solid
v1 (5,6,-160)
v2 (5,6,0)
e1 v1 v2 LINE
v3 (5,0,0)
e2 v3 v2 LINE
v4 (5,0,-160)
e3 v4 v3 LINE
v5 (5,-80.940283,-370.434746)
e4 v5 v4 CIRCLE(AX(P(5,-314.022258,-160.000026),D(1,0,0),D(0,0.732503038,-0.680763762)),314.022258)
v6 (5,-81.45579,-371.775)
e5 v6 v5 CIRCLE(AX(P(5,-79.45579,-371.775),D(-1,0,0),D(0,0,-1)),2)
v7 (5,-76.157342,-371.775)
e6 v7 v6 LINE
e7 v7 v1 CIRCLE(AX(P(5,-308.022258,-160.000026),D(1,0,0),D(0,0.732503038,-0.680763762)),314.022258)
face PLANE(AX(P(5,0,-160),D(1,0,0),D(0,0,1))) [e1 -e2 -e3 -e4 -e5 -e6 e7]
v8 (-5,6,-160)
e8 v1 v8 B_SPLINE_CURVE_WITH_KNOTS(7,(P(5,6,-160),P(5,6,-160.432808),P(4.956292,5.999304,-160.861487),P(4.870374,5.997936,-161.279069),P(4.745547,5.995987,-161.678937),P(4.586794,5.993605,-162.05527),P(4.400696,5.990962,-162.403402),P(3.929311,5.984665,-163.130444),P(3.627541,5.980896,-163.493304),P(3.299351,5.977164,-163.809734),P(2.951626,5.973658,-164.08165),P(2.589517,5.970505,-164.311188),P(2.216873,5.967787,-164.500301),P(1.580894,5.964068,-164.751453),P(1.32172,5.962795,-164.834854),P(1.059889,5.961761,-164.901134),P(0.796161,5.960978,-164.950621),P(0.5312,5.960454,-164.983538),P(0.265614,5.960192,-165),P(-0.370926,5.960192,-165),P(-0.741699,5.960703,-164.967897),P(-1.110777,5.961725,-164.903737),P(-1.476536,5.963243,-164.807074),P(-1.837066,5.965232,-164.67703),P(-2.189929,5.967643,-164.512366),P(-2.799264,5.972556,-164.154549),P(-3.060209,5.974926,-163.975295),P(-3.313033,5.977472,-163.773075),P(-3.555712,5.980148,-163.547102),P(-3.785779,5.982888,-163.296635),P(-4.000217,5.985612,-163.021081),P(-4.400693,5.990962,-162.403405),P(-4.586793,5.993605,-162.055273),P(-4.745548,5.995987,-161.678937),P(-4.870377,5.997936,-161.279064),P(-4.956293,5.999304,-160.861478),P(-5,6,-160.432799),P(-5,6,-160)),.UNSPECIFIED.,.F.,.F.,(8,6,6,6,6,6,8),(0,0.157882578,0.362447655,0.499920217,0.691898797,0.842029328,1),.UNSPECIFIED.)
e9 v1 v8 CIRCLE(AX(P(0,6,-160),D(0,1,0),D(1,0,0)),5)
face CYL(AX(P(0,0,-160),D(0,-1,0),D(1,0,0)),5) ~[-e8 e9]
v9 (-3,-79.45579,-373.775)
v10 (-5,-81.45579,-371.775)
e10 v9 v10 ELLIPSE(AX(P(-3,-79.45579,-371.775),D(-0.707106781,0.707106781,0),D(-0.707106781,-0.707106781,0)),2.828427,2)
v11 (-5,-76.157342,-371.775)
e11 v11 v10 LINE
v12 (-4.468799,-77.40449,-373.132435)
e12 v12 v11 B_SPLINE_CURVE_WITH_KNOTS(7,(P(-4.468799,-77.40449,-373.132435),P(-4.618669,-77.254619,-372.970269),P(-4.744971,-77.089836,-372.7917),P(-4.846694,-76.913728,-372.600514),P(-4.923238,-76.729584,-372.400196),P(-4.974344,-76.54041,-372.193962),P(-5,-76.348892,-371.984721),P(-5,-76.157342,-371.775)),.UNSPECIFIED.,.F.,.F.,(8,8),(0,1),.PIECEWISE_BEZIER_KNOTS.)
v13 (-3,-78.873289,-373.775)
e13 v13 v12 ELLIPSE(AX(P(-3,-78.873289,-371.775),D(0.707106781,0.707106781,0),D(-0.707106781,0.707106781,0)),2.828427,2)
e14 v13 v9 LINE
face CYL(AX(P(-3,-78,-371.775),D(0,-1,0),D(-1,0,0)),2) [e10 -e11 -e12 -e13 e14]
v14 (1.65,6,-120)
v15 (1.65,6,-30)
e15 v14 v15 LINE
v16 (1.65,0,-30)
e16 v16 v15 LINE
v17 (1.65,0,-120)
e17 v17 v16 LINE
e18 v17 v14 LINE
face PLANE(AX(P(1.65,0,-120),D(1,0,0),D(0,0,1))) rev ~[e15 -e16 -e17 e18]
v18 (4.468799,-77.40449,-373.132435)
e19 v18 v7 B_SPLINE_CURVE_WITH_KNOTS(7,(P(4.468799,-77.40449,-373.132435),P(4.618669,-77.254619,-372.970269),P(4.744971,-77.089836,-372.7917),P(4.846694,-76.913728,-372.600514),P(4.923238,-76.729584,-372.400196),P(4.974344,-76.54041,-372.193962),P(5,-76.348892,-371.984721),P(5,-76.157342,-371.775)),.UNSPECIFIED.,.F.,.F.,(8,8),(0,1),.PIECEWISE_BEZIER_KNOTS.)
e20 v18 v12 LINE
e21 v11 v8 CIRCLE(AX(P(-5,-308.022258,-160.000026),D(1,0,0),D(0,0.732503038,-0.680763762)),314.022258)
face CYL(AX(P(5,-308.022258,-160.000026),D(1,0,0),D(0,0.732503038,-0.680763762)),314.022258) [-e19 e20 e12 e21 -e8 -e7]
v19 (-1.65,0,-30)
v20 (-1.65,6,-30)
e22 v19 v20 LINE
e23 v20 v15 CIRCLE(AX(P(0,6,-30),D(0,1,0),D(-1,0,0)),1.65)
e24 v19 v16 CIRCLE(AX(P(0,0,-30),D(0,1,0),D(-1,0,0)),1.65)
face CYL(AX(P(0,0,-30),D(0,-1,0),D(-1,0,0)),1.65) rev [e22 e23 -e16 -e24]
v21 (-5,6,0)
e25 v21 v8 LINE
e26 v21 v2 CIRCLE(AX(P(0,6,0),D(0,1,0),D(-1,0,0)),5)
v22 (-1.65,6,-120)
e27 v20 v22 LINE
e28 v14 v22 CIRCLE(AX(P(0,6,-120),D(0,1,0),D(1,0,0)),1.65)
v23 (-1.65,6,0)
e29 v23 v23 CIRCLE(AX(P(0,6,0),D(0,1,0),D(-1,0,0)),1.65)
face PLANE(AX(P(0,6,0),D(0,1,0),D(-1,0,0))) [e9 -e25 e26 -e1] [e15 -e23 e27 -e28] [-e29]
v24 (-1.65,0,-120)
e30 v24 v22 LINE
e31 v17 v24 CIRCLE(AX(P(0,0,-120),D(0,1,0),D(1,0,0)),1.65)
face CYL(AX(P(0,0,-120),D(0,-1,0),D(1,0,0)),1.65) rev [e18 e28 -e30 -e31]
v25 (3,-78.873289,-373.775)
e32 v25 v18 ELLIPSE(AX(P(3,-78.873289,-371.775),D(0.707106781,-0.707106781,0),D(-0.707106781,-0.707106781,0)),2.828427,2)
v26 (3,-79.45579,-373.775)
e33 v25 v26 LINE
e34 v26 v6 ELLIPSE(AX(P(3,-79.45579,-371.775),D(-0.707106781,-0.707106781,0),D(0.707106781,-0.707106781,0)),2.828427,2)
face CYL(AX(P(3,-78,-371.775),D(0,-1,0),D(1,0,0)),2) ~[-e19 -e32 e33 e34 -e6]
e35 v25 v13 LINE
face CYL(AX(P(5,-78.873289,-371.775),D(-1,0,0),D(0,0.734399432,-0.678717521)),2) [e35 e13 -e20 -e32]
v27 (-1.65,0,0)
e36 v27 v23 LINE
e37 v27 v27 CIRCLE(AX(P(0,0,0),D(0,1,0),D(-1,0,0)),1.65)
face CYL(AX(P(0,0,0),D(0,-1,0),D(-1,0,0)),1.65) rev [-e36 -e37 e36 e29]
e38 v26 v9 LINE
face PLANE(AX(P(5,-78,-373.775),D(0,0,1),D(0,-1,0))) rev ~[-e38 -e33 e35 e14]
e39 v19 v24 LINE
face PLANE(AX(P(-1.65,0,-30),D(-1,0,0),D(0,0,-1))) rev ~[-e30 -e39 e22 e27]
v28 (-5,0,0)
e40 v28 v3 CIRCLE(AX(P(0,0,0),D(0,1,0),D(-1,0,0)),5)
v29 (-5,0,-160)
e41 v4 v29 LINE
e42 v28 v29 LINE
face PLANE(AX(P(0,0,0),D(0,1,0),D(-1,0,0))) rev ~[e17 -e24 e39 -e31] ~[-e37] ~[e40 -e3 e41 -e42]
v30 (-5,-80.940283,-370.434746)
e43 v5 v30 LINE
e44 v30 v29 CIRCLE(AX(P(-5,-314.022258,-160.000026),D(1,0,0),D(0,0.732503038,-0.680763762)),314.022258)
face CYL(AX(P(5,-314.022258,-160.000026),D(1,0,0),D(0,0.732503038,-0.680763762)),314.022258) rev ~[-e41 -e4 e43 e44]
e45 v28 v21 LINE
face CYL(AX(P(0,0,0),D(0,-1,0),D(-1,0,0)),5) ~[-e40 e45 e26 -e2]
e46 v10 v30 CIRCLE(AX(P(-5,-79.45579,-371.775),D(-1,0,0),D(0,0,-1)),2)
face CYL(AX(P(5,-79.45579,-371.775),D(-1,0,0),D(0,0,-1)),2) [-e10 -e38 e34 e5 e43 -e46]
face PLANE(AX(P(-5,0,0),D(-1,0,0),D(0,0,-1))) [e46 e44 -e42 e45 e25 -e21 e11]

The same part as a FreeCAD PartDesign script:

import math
import FreeCAD as App
import Part
import Sketcher
from FreeCAD import Vector
Q = App.Units.Quantity


def edges_at(feature, points):
    """Names of the edges that pass closest to the given points."""
    edges = feature.Shape.Edges
    near = lambda p: min(range(len(edges)), key=lambda i: edges[i].distToShape(Part.Vertex(*p))[0])
    return sorted({f"Edge{near(p) + 1}" for p in points})

doc = App.newDocument("Part")
body = doc.addObject("PartDesign::Body", "Body")

sketch1 = doc.addObject("Sketcher::SketchObject", "Sketch")
body.addObject(sketch1)
sketch1.AttachmentSupport = (doc.XZ_Plane, [""])
sketch1.MapMode = "FlatFace"
sketch1.addGeometry(Part.LineSegment(Vector(-5, -160, 0), Vector(-5, 0, 0)), False)
sketch1.addGeometry(Part.ArcOfCircle(Part.Circle(Vector(0, 0, 0), Vector(0, 0, 1), 5), math.radians(0), math.radians(180)), False)
sketch1.addGeometry(Part.LineSegment(Vector(5, 0, 0), Vector(5, -160, 0)), False)
sketch1.addGeometry(Part.ArcOfCircle(Part.Circle(Vector(0, -160, 0), Vector(0, 0, 1), 5), math.radians(180), math.radians(360)), False)
sketch1.addGeometry(Part.ArcOfCircle(Part.Circle(Vector(0, -30, 0), Vector(0, 0, 1), 1.65), math.radians(0), math.radians(180)), False)
sketch1.addGeometry(Part.LineSegment(Vector(-1.65, -30, 0), Vector(-1.65, -120, 0)), False)
sketch1.addGeometry(Part.ArcOfCircle(Part.Circle(Vector(0, -120, 0), Vector(0, 0, 1), 1.65), math.radians(180), math.radians(360)), False)
sketch1.addGeometry(Part.LineSegment(Vector(1.65, -120, 0), Vector(1.65, -30, 0)), False)
sketch1.addGeometry(Part.Circle(Vector(0, 0, 0), Vector(0, 0, 1), 1.65), False)
sketch1.addConstraint(Sketcher.Constraint("Tangent", 0, 2, 1, 2))
sketch1.addConstraint(Sketcher.Constraint("Tangent", 1, 1, 2, 1))
sketch1.addConstraint(Sketcher.Constraint("Tangent", 2, 2, 3, 2))
sketch1.addConstraint(Sketcher.Constraint("Tangent", 3, 1, 0, 1))
sketch1.addConstraint(Sketcher.Constraint("Tangent", 4, 2, 5, 1))
sketch1.addConstraint(Sketcher.Constraint("Tangent", 5, 2, 6, 1))
sketch1.addConstraint(Sketcher.Constraint("Tangent", 6, 2, 7, 1))
sketch1.addConstraint(Sketcher.Constraint("Tangent", 7, 2, 4, 1))
sketch1.addConstraint(Sketcher.Constraint("Vertical", 0))
sketch1.addConstraint(Sketcher.Constraint("Vertical", 2))
sketch1.addConstraint(Sketcher.Constraint("Vertical", 5))
sketch1.addConstraint(Sketcher.Constraint("Vertical", 7))
sketch1.addConstraint(Sketcher.Constraint("Coincident", 1, 3, -1, 1))
sketch1.addConstraint(Sketcher.Constraint("Coincident", 8, 3, -1, 1))
sketch1.addConstraint(Sketcher.Constraint("Equal", 6, 8))
sketch1.addConstraint(Sketcher.Constraint("PointOnObject", 4, 3, -2))
sketch1.addConstraint(Sketcher.Constraint("Radius", 1, Q("5 mm")))
sketch1.addConstraint(Sketcher.Constraint("Diameter", 8, Q("3.3 mm")))
sketch1.addConstraint(Sketcher.Constraint("DistanceY", 0, 1, 0, 2, Q("160 mm")))
sketch1.addConstraint(Sketcher.Constraint("DistanceY", 4, 3, -1, 1, Q("30 mm")))
sketch1.addConstraint(Sketcher.Constraint("DistanceY", 6, 3, -1, 1, Q("120 mm")))
pad1 = doc.addObject("PartDesign::Pad", "Pad")
body.addObject(pad1)
pad1.Profile = sketch1
pad1.Length = 6
pad1.Reversed = True

sketch2 = doc.addObject("Sketcher::SketchObject", "Sketch001")
body.addObject(sketch2)
sketch2.AttachmentSupport = (doc.YZ_Plane, [""])
sketch2.MapMode = "FlatFace"
sketch2.AttachmentOffset = App.Placement(Vector(0, 0, 5), App.Rotation())
sketch2.addGeometry(Part.LineSegment(Vector(6, -160, 0), Vector(0, -160, 0)), False)
sketch2.addGeometry(Part.ArcOfCircle(Part.Circle(Vector(-314.0223, -160, 0), Vector(0, 0, 1), 314.022307), math.radians(-42.903353), math.radians(0)), False)
sketch2.addGeometry(Part.LineSegment(Vector(-84, -373.775, 0), Vector(-78, -373.775, 0)), False)
sketch2.addGeometry(Part.ArcOfCircle(Part.Circle(Vector(-308.0223, -160, 0), Vector(0, 0, 1), 314.022307), math.radians(-42.903353), math.radians(0)), False)
sketch2.addConstraint(Sketcher.Constraint("Coincident", 0, 2, 1, 2))
sketch2.addConstraint(Sketcher.Constraint("Coincident", 1, 1, 2, 1))
sketch2.addConstraint(Sketcher.Constraint("Coincident", 2, 2, 3, 1))
sketch2.addConstraint(Sketcher.Constraint("Coincident", 3, 2, 0, 1))
sketch2.addConstraint(Sketcher.Constraint("Horizontal", 0))
sketch2.addConstraint(Sketcher.Constraint("Horizontal", 2))
sketch2.addConstraint(Sketcher.Constraint("Equal", 1, 3))
sketch2.addConstraint(Sketcher.Constraint("PointOnObject", 0, 2, -2))
sketch2.addConstraint(Sketcher.Constraint("Horizontal", 1, 3, 3, 3))
sketch2.addConstraint(Sketcher.Constraint("Horizontal", 3, 3, 0, 2))
sketch2.addConstraint(Sketcher.Constraint("DistanceX", 0, 2, 0, 1, Q("6 mm")))
sketch2.addConstraint(Sketcher.Constraint("DistanceX", 1, 1, 3, 2, Q("90 mm")))
sketch2.addConstraint(Sketcher.Constraint("DistanceY", 1, 3, -1, 1, Q("160 mm")))
sketch2.addConstraint(Sketcher.Constraint("DistanceY", 2, 2, -1, 1, Q("373.775 mm")))
pad2 = doc.addObject("PartDesign::Pad", "Pad001")
body.addObject(pad2)
pad2.Profile = sketch2
pad2.Length = 10
pad2.Reversed = True
doc.recompute()

fillet = doc.addObject("PartDesign::Fillet", "Fillet")
body.addObject(fillet)
fillet.Base = (pad2, edges_at(pad2, [
    (0, -78, -373.775),
    (5, -81, -373.775),
    (-5, -81, -373.775),
    (0, -84, -373.775),
]))
fillet.Radius = 2

doc.recompute()
